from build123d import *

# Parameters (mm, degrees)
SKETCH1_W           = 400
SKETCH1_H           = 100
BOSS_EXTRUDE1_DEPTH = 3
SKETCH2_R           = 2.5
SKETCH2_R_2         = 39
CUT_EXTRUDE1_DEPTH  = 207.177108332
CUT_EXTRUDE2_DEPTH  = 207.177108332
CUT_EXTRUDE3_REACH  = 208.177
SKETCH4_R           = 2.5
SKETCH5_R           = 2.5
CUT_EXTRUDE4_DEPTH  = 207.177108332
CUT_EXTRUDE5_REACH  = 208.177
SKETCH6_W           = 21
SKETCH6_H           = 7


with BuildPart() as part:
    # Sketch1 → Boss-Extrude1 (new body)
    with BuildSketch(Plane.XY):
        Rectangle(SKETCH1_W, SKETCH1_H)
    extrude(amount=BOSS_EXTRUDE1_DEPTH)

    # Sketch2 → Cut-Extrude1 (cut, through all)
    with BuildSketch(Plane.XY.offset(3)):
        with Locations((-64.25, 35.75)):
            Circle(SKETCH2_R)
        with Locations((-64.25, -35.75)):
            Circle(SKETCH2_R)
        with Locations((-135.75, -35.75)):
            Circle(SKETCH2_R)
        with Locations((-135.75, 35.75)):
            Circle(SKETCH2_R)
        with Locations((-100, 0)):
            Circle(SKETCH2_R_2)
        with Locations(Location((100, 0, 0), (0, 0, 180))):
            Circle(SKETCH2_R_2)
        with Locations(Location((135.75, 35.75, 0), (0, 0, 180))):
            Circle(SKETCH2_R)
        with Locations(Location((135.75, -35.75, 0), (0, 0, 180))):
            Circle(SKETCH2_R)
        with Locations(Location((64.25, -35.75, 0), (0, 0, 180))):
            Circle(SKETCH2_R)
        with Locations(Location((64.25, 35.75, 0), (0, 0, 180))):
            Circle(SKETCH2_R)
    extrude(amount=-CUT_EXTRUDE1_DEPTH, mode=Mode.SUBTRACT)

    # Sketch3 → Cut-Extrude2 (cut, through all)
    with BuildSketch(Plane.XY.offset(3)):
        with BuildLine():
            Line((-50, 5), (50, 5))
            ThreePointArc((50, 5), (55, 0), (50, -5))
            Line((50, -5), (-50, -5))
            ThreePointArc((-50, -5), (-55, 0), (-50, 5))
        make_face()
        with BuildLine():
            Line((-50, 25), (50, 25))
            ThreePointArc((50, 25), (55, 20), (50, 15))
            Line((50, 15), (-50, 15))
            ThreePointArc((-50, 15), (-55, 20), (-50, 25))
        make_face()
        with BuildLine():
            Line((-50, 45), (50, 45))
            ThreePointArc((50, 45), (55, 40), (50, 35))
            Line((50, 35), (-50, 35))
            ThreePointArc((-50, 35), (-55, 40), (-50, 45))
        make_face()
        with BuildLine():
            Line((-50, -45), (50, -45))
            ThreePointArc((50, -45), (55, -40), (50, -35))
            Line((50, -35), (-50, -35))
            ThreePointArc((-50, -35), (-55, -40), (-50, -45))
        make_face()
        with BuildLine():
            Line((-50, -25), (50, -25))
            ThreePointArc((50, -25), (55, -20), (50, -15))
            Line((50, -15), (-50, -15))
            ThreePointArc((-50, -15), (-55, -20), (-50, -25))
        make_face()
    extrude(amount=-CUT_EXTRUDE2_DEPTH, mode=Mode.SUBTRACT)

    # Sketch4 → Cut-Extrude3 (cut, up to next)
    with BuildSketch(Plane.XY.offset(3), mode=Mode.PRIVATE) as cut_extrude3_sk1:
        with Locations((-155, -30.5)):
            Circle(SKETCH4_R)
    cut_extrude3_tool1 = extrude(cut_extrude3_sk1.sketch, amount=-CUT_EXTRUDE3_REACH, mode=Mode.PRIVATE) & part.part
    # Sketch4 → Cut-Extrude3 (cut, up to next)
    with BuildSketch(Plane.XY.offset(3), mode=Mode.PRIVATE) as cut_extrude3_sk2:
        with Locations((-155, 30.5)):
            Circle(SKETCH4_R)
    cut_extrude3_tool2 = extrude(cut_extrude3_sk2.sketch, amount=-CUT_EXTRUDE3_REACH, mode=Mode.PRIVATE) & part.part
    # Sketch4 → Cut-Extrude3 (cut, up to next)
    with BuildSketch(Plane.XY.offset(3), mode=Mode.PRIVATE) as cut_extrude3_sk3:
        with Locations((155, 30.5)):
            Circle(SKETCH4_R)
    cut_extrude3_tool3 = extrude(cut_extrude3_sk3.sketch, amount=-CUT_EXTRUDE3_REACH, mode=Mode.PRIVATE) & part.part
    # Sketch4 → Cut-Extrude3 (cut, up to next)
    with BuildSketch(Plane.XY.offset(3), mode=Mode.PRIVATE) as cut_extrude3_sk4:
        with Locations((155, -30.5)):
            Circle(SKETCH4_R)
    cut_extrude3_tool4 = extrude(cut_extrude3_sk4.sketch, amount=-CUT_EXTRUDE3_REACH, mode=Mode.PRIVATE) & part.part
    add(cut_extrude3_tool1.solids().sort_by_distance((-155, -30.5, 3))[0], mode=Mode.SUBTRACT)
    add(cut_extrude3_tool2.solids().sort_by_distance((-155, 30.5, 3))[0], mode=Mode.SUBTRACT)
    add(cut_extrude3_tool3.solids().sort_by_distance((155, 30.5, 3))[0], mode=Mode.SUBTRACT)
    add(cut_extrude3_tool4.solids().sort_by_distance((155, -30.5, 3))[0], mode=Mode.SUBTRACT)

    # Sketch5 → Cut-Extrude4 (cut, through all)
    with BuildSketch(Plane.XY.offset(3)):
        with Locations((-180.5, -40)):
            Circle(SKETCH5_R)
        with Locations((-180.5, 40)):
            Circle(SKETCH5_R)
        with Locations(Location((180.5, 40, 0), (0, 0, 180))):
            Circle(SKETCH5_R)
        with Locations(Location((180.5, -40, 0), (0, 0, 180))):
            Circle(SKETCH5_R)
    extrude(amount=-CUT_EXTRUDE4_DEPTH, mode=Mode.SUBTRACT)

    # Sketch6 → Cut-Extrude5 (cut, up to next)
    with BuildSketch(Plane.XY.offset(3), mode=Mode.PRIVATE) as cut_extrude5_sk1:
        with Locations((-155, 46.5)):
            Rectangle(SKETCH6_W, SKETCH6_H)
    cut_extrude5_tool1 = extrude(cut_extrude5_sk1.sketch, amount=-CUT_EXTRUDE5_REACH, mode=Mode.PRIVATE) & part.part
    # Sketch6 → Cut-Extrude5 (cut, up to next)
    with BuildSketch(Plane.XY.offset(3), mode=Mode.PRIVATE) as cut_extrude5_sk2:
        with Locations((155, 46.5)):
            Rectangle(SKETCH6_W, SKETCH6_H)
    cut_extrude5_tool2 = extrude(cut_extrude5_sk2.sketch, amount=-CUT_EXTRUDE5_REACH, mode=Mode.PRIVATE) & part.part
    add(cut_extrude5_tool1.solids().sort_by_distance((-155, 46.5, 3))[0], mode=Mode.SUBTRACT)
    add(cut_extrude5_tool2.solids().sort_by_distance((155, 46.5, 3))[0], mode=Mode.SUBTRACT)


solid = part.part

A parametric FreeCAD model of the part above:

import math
import FreeCAD as App
import Part
import Sketcher
from FreeCAD import Vector


def add_polygon(sketch, points):
    """Adds a closed chain of lines whose ends are joined by coincident constraints."""
    first, n = sketch.GeometryCount, len(points)
    for a, b in zip(points, points[1:] + points[:1]):
        sketch.addGeometry(Part.LineSegment(App.Vector(*a, 0), App.Vector(*b, 0)), False)
    for i in range(n):
        sketch.addConstraint(Sketcher.Constraint("Coincident", first + i, 2, first + (i + 1) % n, 1))

doc = App.newDocument("Part")
params = doc.addObject("Spreadsheet::Sheet", "Params")
for row, (alias, value) in enumerate([
    ("sketch1_width", "400 mm"),
    ("sketch1_height", "100 mm"),
    ("pad1_length", "3 mm"),
    ("sketch2_diameter", "5 mm"),
    ("sketch2_diameter2", "78 mm"),
    ("sketch3_radius", "5 mm"),
    ("sketch3_width", "100 mm"),
    ("sketch4_diameter", "5 mm"),
    ("sketch5_diameter", "5 mm"),
    ("sketch6_diameter", "5 mm"),
    ("sketch7_diameter", "5 mm"),
    ("sketch8_diameter", "5 mm"),
    ("sketch9_width", "21 mm"),
    ("sketch9_height", "7 mm"),
    ("sketch10_width", "21 mm"),
    ("sketch10_height", "7 mm"),
], start=1):
    params.set(f"A{row}", alias)
    params.set(f"B{row}", "=" + value)
    params.setAlias(f"B{row}", alias)

body = doc.addObject("PartDesign::Body", "Body")

sketch1 = body.newObject("Sketcher::SketchObject", "Sketch")
sketch1.AttachmentSupport = (doc.getObject("XY_Plane"), [""])
sketch1.MapMode = "FlatFace"
add_polygon(sketch1, [(-200, 50), (-200, -50), (200, -50), (200, 50)])
sketch1.addConstraint(Sketcher.Constraint("Vertical", 0))
sketch1.addConstraint(Sketcher.Constraint("Horizontal", 1))
sketch1.addConstraint(Sketcher.Constraint("Vertical", 2))
sketch1.addConstraint(Sketcher.Constraint("Horizontal", 3))
sketch1.addConstraint(Sketcher.Constraint("Symmetric", 0, 2, 2, 2, -1, 1))
sketch1.addConstraint(Sketcher.Constraint("DistanceX", 1, 1, 1, 2, 400.0))
sketch1.addConstraint(Sketcher.Constraint("DistanceY", 0, 2, 0, 1, 100.0))
sketch1.setExpression("Constraints[9]", "Params.sketch1_width")
sketch1.setExpression("Constraints[10]", "Params.sketch1_height")
pad1 = body.newObject("PartDesign::Pad", "Pad")
pad1.Profile = sketch1
pad1.setExpression("Length", "Params.pad1_length")

sketch2 = body.newObject("Sketcher::SketchObject", "Sketch001")
sketch2.AttachmentSupport = (doc.getObject("XY_Plane"), [""])
sketch2.MapMode = "FlatFace"
sketch2.AttachmentOffset = App.Placement(Vector(0, 0, 3), App.Rotation())
sketch2.addGeometry(Part.Circle(Vector(-64.2, 35.8, 0), Vector(0, 0, 1), 2.5), False)
sketch2.addGeometry(Part.Circle(Vector(-64.2, -35.8, 0), Vector(0, 0, 1), 2.5), False)
sketch2.addGeometry(Part.Circle(Vector(-135.8, -35.8, 0), Vector(0, 0, 1), 2.5), False)
sketch2.addGeometry(Part.Circle(Vector(-135.8, 35.8, 0), Vector(0, 0, 1), 2.5), False)
sketch2.addGeometry(Part.Circle(Vector(-100, 0, 0), Vector(0, 0, 1), 39), False)
sketch2.addGeometry(Part.Circle(Vector(100, 0, 0), Vector(0, 0, 1), 39), False)
sketch2.addGeometry(Part.Circle(Vector(135.8, 35.8, 0), Vector(0, 0, 1), 2.5), False)
sketch2.addGeometry(Part.Circle(Vector(135.8, -35.8, 0), Vector(0, 0, 1), 2.5), False)
sketch2.addGeometry(Part.Circle(Vector(64.2, -35.8, 0), Vector(0, 0, 1), 2.5), False)
sketch2.addGeometry(Part.Circle(Vector(64.2, 35.8, 0), Vector(0, 0, 1), 2.5), False)
sketch2.addConstraint(Sketcher.Constraint("Equal", 0, 1))
sketch2.addConstraint(Sketcher.Constraint("Equal", 1, 2))
sketch2.addConstraint(Sketcher.Constraint("Equal", 2, 3))
sketch2.addConstraint(Sketcher.Constraint("Equal", 4, 5))
sketch2.addConstraint(Sketcher.Constraint("Equal", 3, 6))
sketch2.addConstraint(Sketcher.Constraint("Equal", 6, 7))
sketch2.addConstraint(Sketcher.Constraint("Equal", 7, 8))
sketch2.addConstraint(Sketcher.Constraint("Equal", 8, 9))
sketch2.addConstraint(Sketcher.Constraint("Symmetric", 4, 3, 5, 3, -1, 1))
sketch2.addConstraint(Sketcher.Constraint("Symmetric", 2, 3, 6, 3, -1, 1))
sketch2.addConstraint(Sketcher.Constraint("Symmetric", 3, 3, 7, 3, -1, 1))
sketch2.addConstraint(Sketcher.Constraint("Symmetric", 0, 3, 8, 3, -1, 1))
sketch2.addConstraint(Sketcher.Constraint("Symmetric", 1, 3, 9, 3, -1, 1))
sketch2.addConstraint(Sketcher.Constraint("Symmetric", 3, 3, 6, 3, -2))
sketch2.addConstraint(Sketcher.Constraint("Symmetric", 1, 3, 8, 3, -2))
sketch2.addConstraint(Sketcher.Constraint("PointOnObject", 4, 3, -1))
sketch2.addConstraint(Sketcher.Constraint("Horizontal", 1, 3, 2, 3))
sketch2.addConstraint(Sketcher.Constraint("Diameter", 0, 5.0))
sketch2.addConstraint(Sketcher.Constraint("Diameter", 4, 78.0))
sketch2.addConstraint(Sketcher.Constraint("DistanceX", 4, 3, -1, 1, 100.0))
sketch2.addConstraint(Sketcher.Constraint("DistanceX", 0, 3, 6, 3, 200.0))
sketch2.addConstraint(Sketcher.Constraint("DistanceY", 1, 3, 0, 3, 71.5))
sketch2.addConstraint(Sketcher.Constraint("DistanceX", 2, 3, 1, 3, 71.5))
sketch2.setExpression("Constraints[17]", "Params.sketch2_diameter")
sketch2.setExpression("Constraints[18]", "Params.sketch2_diameter2")
pocket1 = body.newObject("PartDesign::Pocket", "Pocket")
pocket1.Profile = sketch2
pocket1.Type = "ThroughAll"

sketch3 = body.newObject("Sketcher::SketchObject", "Sketch002")
sketch3.AttachmentSupport = (doc.getObject("XY_Plane"), [""])
sketch3.MapMode = "FlatFace"
sketch3.AttachmentOffset = App.Placement(Vector(0, 0, 3), App.Rotation())
sketch3.addGeometry(Part.LineSegment(Vector(50, 5, 0), Vector(-50, 5, 0)), False)
sketch3.addGeometry(Part.ArcOfCircle(Part.Circle(Vector(-50, 0, 0), Vector(0, 0, 1), 5), math.radians(90), math.radians(270)), False)
sketch3.addGeometry(Part.LineSegment(Vector(-50, -5, 0), Vector(50, -5, 0)), False)
sketch3.addGeometry(Part.ArcOfCircle(Part.Circle(Vector(50, 0, 0), Vector(0, 0, 1), 5), math.radians(-90), math.radians(90)), False)
sketch3.addGeometry(Part.LineSegment(Vector(50, 25, 0), Vector(-50, 25, 0)), False)
sketch3.addGeometry(Part.ArcOfCircle(Part.Circle(Vector(-50, 20, 0), Vector(0, 0, 1), 5), math.radians(90), math.radians(270)), False)
sketch3.addGeometry(Part.LineSegment(Vector(-50, 15, 0), Vector(50, 15, 0)), False)
sketch3.addGeometry(Part.ArcOfCircle(Part.Circle(Vector(50, 20, 0), Vector(0, 0, 1), 5), math.radians(-90), math.radians(90)), False)
sketch3.addGeometry(Part.LineSegment(Vector(50, 45, 0), Vector(-50, 45, 0)), False)
sketch3.addGeometry(Part.ArcOfCircle(Part.Circle(Vector(-50, 40, 0), Vector(0, 0, 1), 5), math.radians(90), math.radians(270)), False)
sketch3.addGeometry(Part.LineSegment(Vector(-50, 35, 0), Vector(50, 35, 0)), False)
sketch3.addGeometry(Part.ArcOfCircle(Part.Circle(Vector(50, 40, 0), Vector(0, 0, 1), 5), math.radians(-90), math.radians(90)), False)
sketch3.addGeometry(Part.LineSegment(Vector(-50, -45, 0), Vector(50, -45, 0)), False)
sketch3.addGeometry(Part.ArcOfCircle(Part.Circle(Vector(50, -40, 0), Vector(0, 0, 1), 5), math.radians(-90), math.radians(90)), False)
sketch3.addGeometry(Part.LineSegment(Vector(50, -35, 0), Vector(-50, -35, 0)), False)
sketch3.addGeometry(Part.ArcOfCircle(Part.Circle(Vector(-50, -40, 0), Vector(0, 0, 1), 5), math.radians(90), math.radians(270)), False)
sketch3.addGeometry(Part.LineSegment(Vector(-50, -25, 0), Vector(50, -25, 0)), False)
sketch3.addGeometry(Part.ArcOfCircle(Part.Circle(Vector(50, -20, 0), Vector(0, 0, 1), 5), math.radians(-90), math.radians(90)), False)
sketch3.addGeometry(Part.LineSegment(Vector(50, -15, 0), Vector(-50, -15, 0)), False)
sketch3.addGeometry(Part.ArcOfCircle(Part.Circle(Vector(-50, -20, 0), Vector(0, 0, 1), 5), math.radians(90), math.radians(270)), False)
sketch3.addConstraint(Sketcher.Constraint("Tangent", 0, 2, 1, 1))
sketch3.addConstraint(Sketcher.Constraint("Tangent", 1, 2, 2, 1))
sketch3.addConstraint(Sketcher.Constraint("Tangent", 2, 2, 3, 1))
sketch3.addConstraint(Sketcher.Constraint("Tangent", 3, 2, 0, 1))
sketch3.addConstraint(Sketcher.Constraint("Tangent", 4, 2, 5, 1))
sketch3.addConstraint(Sketcher.Constraint("Tangent", 5, 2, 6, 1))
sketch3.addConstraint(Sketcher.Constraint("Tangent", 6, 2, 7, 1))
sketch3.addConstraint(Sketcher.Constraint("Tangent", 7, 2, 4, 1))
sketch3.addConstraint(Sketcher.Constraint("Tangent", 8, 2, 9, 1))
sketch3.addConstraint(Sketcher.Constraint("Tangent", 9, 2, 10, 1))
sketch3.addConstraint(Sketcher.Constraint("Tangent", 10, 2, 11, 1))
sketch3.addConstraint(Sketcher.Constraint("Tangent", 11, 2, 8, 1))
sketch3.addConstraint(Sketcher.Constraint("Tangent", 12, 2, 13, 1))
sketch3.addConstraint(Sketcher.Constraint("Tangent", 13, 2, 14, 1))
sketch3.addConstraint(Sketcher.Constraint("Tangent", 14, 2, 15, 1))
sketch3.addConstraint(Sketcher.Constraint("Tangent", 15, 2, 12, 1))
sketch3.addConstraint(Sketcher.Constraint("Tangent", 16, 2, 17, 1))
sketch3.addConstraint(Sketcher.Constraint("Tangent", 17, 2, 18, 1))
sketch3.addConstraint(Sketcher.Constraint("Tangent", 18, 2, 19, 1))
sketch3.addConstraint(Sketcher.Constraint("Tangent", 19, 2, 16, 1))
sketch3.addConstraint(Sketcher.Constraint("Horizontal", 0))
sketch3.addConstraint(Sketcher.Constraint("Horizontal", 2))
sketch3.addConstraint(Sketcher.Constraint("Horizontal", 4))
sketch3.addConstraint(Sketcher.Constraint("Horizontal", 6))
sketch3.addConstraint(Sketcher.Constraint("Horizontal", 8))
sketch3.addConstraint(Sketcher.Constraint("Horizontal", 10))
sketch3.addConstraint(Sketcher.Constraint("Horizontal", 12))
sketch3.addConstraint(Sketcher.Constraint("Horizontal", 14))
sketch3.addConstraint(Sketcher.Constraint("Horizontal", 16))
sketch3.addConstraint(Sketcher.Constraint("Horizontal", 18))
sketch3.addConstraint(Sketcher.Constraint("Equal", 3, 5))
sketch3.addConstraint(Sketcher.Constraint("Equal", 7, 9))
sketch3.addConstraint(Sketcher.Constraint("Equal", 11, 13))
sketch3.addConstraint(Sketcher.Constraint("Equal", 15, 17))
sketch3.addConstraint(Sketcher.Constraint("Symmetric", 1, 3, 3, 3, -1, 1))
sketch3.addConstraint(Sketcher.Constraint("Symmetric", 9, 3, 13, 3, -1, 1))
sketch3.addConstraint(Sketcher.Constraint("Symmetric", 5, 3, 17, 3, -1, 1))
sketch3.addConstraint(Sketcher.Constraint("Vertical", 1, 3, 5, 3))
sketch3.addConstraint(Sketcher.Constraint("Vertical", 3, 3, 7, 3))
sketch3.addConstraint(Sketcher.Constraint("Vertical", 5, 3, 9, 3))
sketch3.addConstraint(Sketcher.Constraint("Vertical", 7, 3, 11, 3))
sketch3.addConstraint(Sketcher.Constraint("Vertical", 9, 3, 15, 3))
sketch3.addConstraint(Sketcher.Constraint("Vertical", 15, 3, 19, 3))
sketch3.addConstraint(Sketcher.Constraint("Radius", 1, 5.0))
sketch3.addConstraint(Sketcher.Constraint("DistanceX", 0, 2, 0, 1, 100.0))
sketch3.addConstraint(Sketcher.Constraint("DistanceY", -1, 1, 5, 3, 20.0))
sketch3.addConstraint(Sketcher.Constraint("DistanceY", -1, 1, 9, 3, 40.0))
sketch3.setExpression("Constraints[43]", "Params.sketch3_radius")
sketch3.setExpression("Constraints[44]", "Params.sketch3_width")
pocket2 = body.newObject("PartDesign::Pocket", "Pocket001")
pocket2.Profile = sketch3
pocket2.Type = "ThroughAll"

sketch4 = body.newObject("Sketcher::SketchObject", "Sketch003")
sketch4.AttachmentSupport = (doc.getObject("XY_Plane"), [""])
sketch4.MapMode = "FlatFace"
sketch4.AttachmentOffset = App.Placement(Vector(0, 0, 3), App.Rotation())
sketch4.addGeometry(Part.Circle(Vector(-155, -30.5, 0), Vector(0, 0, 1), 2.5), False)
sketch4.addConstraint(Sketcher.Constraint("Diameter", 0, 5.0))
sketch4.addConstraint(Sketcher.Constraint("DistanceX", 0, 3, -1, 1, 155.0))
sketch4.addConstraint(Sketcher.Constraint("DistanceY", 0, 3, -1, 1, 30.5))
sketch4.setExpression("Constraints[0]", "Params.sketch4_diameter")
pocket3 = body.newObject("PartDesign::Pocket", "Pocket002")
pocket3.Profile = sketch4
pocket3.Type = "UpToFirst"

sketch5 = body.newObject("Sketcher::SketchObject", "Sketch004")
sketch5.AttachmentSupport = (doc.getObject("XY_Plane"), [""])
sketch5.MapMode = "FlatFace"
sketch5.AttachmentOffset = App.Placement(Vector(0, 0, 3), App.Rotation())
sketch5.addGeometry(Part.Circle(Vector(-155, 30.5, 0), Vector(0, 0, 1), 2.5), False)
sketch5.addConstraint(Sketcher.Constraint("Diameter", 0, 5.0))
sketch5.addConstraint(Sketcher.Constraint("DistanceX", 0, 3, -1, 1, 155.0))
sketch5.addConstraint(Sketcher.Constraint("DistanceY", -1, 1, 0, 3, 30.5))
sketch5.setExpression("Constraints[0]", "Params.sketch5_diameter")
pocket4 = body.newObject("PartDesign::Pocket", "Pocket003")
pocket4.Profile = sketch5
pocket4.Type = "UpToFirst"

sketch6 = body.newObject("Sketcher::SketchObject", "Sketch005")
sketch6.AttachmentSupport = (doc.getObject("XY_Plane"), [""])
sketch6.MapMode = "FlatFace"
sketch6.AttachmentOffset = App.Placement(Vector(0, 0, 3), App.Rotation())
sketch6.addGeometry(Part.Circle(Vector(155, 30.5, 0), Vector(0, 0, 1), 2.5), False)
sketch6.addConstraint(Sketcher.Constraint("Diameter", 0, 5.0))
sketch6.addConstraint(Sketcher.Constraint("DistanceX", -1, 1, 0, 3, 155.0))
sketch6.addConstraint(Sketcher.Constraint("DistanceY", -1, 1, 0, 3, 30.5))
sketch6.setExpression("Constraints[0]", "Params.sketch6_diameter")
pocket5 = body.newObject("PartDesign::Pocket", "Pocket004")
pocket5.Profile = sketch6
pocket5.Type = "UpToFirst"

sketch7 = body.newObject("Sketcher::SketchObject", "Sketch006")
sketch7.AttachmentSupport = (doc.getObject("XY_Plane"), [""])
sketch7.MapMode = "FlatFace"
sketch7.AttachmentOffset = App.Placement(Vector(0, 0, 3), App.Rotation())
sketch7.addGeometry(Part.Circle(Vector(155, -30.5, 0), Vector(0, 0, 1), 2.5), False)
sketch7.addConstraint(Sketcher.Constraint("Diameter", 0, 5.0))
sketch7.addConstraint(Sketcher.Constraint("DistanceX", -1, 1, 0, 3, 155.0))
sketch7.addConstraint(Sketcher.Constraint("DistanceY", 0, 3, -1, 1, 30.5))
sketch7.setExpression("Constraints[0]", "Params.sketch7_diameter")
pocket6 = body.newObject("PartDesign::Pocket", "Pocket005")
pocket6.Profile = sketch7
pocket6.Type = "UpToFirst"

sketch8 = body.newObject("Sketcher::SketchObject", "Sketch007")
sketch8.AttachmentSupport = (doc.getObject("XY_Plane"), [""])
sketch8.MapMode = "FlatFace"
sketch8.AttachmentOffset = App.Placement(Vector(0, 0, 3), App.Rotation())
sketch8.addGeometry(Part.Circle(Vector(-180.5, -40, 0), Vector(0, 0, 1), 2.5), False)
sketch8.addGeometry(Part.Circle(Vector(-180.5, 40, 0), Vector(0, 0, 1), 2.5), False)
sketch8.addGeometry(Part.Circle(Vector(180.5, 40, 0), Vector(0, 0, 1), 2.5), False)
sketch8.addGeometry(Part.Circle(Vector(180.5, -40, 0), Vector(0, 0, 1), 2.5), False)
sketch8.addConstraint(Sketcher.Constraint("Equal", 0, 1))
sketch8.addConstraint(Sketcher.Constraint("Equal", 1, 2))
sketch8.addConstraint(Sketcher.Constraint("Equal", 2, 3))
sketch8.addConstraint(Sketcher.Constraint("Symmetric", 0, 3, 2, 3, -1, 1))
sketch8.addConstraint(Sketcher.Constraint("Symmetric", 1, 3, 3, 3, -1, 1))
sketch8.addConstraint(Sketcher.Constraint("Symmetric", 1, 3, 2, 3, -2))
sketch8.addConstraint(Sketcher.Constraint("Diameter", 0, 5.0))
sketch8.addConstraint(Sketcher.Constraint("DistanceY", 0, 3, -1, 1, 40.0))
sketch8.addConstraint(Sketcher.Constraint("DistanceX", 1, 3, 2, 3, 361.0))
sketch8.setExpression("Constraints[6]", "Params.sketch8_diameter")
pocket7 = body.newObject("PartDesign::Pocket", "Pocket006")
pocket7.Profile = sketch8
pocket7.Type = "ThroughAll"

sketch9 = body.newObject("Sketcher::SketchObject", "Sketch008")
sketch9.AttachmentSupport = (doc.getObject("XY_Plane"), [""])
sketch9.MapMode = "FlatFace"
sketch9.AttachmentOffset = App.Placement(Vector(0, 0, 3), App.Rotation())
add_polygon(sketch9, [(-166, 50), (-166, 43), (-144, 43), (-144, 50)])
sketch9.addConstraint(Sketcher.Constraint("Vertical", 0))
sketch9.addConstraint(Sketcher.Constraint("Horizontal", 1))
sketch9.addConstraint(Sketcher.Constraint("Vertical", 2))
sketch9.addConstraint(Sketcher.Constraint("Horizontal", 3))
sketch9.addConstraint(Sketcher.Constraint("DistanceX", 1, 1, 1, 2, 21.0))
sketch9.addConstraint(Sketcher.Constraint("DistanceY", 0, 2, 0, 1, 7.0))
sketch9.addConstraint(Sketcher.Constraint("DistanceY", -1, 1, 0, 2, 43.0))
sketch9.addConstraint(Sketcher.Constraint("DistanceX", 0, 2, -1, 1, 165.5))
sketch9.setExpression("Constraints[8]", "Params.sketch9_width")
sketch9.setExpression("Constraints[9]", "Params.sketch9_height")
pocket8 = body.newObject("PartDesign::Pocket", "Pocket007")
pocket8.Profile = sketch9
pocket8.Type = "UpToFirst"

sketch10 = body.newObject("Sketcher::SketchObject", "Sketch009")
sketch10.AttachmentSupport = (doc.getObject("XY_Plane"), [""])
sketch10.MapMode = "FlatFace"
sketch10.AttachmentOffset = App.Placement(Vector(0, 0, 3), App.Rotation())
add_polygon(sketch10, [(144, 50), (144, 43), (166, 43), (166, 50)])
sketch10.addConstraint(Sketcher.Constraint("Vertical", 0))
sketch10.addConstraint(Sketcher.Constraint("Horizontal", 1))
sketch10.addConstraint(Sketcher.Constraint("Vertical", 2))
sketch10.addConstraint(Sketcher.Constraint("Horizontal", 3))
sketch10.addConstraint(Sketcher.Constraint("DistanceX", 1, 1, 1, 2, 21.0))
sketch10.addConstraint(Sketcher.Constraint("DistanceY", 0, 2, 0, 1, 7.0))
sketch10.addConstraint(Sketcher.Constraint("DistanceY", -1, 1, 0, 2, 43.0))
sketch10.addConstraint(Sketcher.Constraint("DistanceX", -1, 1, 0, 2, 144.5))
sketch10.setExpression("Constraints[8]", "Params.sketch10_width")
sketch10.setExpression("Constraints[9]", "Params.sketch10_height")
pocket9 = body.newObject("PartDesign::Pocket", "Pocket008")
pocket9.Profile = sketch10
pocket9.Type = "UpToFirst"

doc.recompute()
